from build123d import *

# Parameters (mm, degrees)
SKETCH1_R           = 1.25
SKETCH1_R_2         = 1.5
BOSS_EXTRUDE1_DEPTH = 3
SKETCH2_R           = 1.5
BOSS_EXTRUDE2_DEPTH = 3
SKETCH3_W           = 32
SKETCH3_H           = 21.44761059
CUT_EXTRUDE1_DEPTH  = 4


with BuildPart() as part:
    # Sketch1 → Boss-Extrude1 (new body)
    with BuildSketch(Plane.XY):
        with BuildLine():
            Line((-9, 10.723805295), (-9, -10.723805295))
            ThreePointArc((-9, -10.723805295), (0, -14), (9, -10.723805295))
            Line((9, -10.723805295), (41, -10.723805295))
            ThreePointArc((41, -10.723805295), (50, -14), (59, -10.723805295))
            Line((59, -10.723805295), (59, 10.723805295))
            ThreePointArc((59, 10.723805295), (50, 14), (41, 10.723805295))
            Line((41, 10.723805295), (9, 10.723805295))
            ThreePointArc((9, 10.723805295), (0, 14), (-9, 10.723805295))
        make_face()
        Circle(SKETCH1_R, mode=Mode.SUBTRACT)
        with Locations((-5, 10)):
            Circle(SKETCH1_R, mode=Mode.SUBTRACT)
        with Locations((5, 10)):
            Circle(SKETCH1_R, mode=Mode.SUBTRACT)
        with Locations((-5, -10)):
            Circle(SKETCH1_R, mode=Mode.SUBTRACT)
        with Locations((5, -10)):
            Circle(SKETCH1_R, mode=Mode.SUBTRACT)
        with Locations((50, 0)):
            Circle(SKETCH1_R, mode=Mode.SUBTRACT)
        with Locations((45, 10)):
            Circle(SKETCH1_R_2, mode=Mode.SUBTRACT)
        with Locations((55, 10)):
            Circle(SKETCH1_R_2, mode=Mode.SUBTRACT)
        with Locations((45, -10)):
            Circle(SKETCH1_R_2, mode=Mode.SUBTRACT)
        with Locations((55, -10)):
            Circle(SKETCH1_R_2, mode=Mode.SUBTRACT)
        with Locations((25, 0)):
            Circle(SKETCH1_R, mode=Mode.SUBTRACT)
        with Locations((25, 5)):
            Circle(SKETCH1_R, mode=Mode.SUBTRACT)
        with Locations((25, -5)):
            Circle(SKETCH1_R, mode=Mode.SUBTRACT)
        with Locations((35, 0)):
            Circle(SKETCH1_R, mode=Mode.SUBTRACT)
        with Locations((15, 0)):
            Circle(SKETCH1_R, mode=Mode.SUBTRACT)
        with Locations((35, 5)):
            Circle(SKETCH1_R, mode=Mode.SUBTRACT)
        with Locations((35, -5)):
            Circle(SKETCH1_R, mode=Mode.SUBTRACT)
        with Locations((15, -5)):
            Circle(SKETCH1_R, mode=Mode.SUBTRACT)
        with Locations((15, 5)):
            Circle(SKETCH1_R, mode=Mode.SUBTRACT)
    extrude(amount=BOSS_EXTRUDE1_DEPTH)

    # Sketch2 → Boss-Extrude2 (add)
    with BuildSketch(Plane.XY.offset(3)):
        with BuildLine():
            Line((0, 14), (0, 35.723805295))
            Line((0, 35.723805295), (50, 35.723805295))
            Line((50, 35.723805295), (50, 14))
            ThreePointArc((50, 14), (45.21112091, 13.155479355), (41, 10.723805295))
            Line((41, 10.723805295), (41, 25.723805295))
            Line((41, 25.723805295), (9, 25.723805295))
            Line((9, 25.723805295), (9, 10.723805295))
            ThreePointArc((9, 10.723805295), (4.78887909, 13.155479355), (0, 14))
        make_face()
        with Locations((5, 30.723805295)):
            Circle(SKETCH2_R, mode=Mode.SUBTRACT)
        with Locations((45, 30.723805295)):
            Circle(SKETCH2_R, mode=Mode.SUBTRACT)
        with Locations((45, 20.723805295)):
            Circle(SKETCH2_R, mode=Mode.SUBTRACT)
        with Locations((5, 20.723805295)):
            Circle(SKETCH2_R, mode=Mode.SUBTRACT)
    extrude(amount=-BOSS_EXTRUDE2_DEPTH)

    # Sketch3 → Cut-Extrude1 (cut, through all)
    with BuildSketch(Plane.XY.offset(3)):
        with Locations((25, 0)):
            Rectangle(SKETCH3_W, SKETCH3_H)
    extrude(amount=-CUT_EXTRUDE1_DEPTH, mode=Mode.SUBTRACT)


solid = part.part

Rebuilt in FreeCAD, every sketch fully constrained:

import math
import FreeCAD as App
import Part
import Sketcher

V = App.Vector
Q = App.Units.Quantity

doc = App.newDocument("Part")
body = doc.addObject("PartDesign::Body", "Body")

# Sketch on XY plane
sketch1 = doc.addObject("Sketcher::SketchObject", "Sketch")
body.addObject(sketch1)
sketch1.AttachmentSupport = (doc.XY_Plane, [""])
sketch1.MapMode = "FlatFace"
sketch1.addGeometry(Part.LineSegment(V(-9, 10.723805, 0), V(-9, -10.723805, 0)), False)
sketch1.addGeometry(Part.ArcOfCircle(Part.Circle(V(0, 0, 0), V(0, 0, 1), 14), math.radians(-130.005201), math.radians(-49.994799)), False)
sketch1.addGeometry(Part.LineSegment(V(9, -10.723805, 0), V(41, -10.723805, 0)), False)
sketch1.addGeometry(Part.ArcOfCircle(Part.Circle(V(50, 0, 0), V(0, 0, 1), 14), math.radians(-130.005201), math.radians(-49.994799)), False)
sketch1.addGeometry(Part.LineSegment(V(59, -10.723805, 0), V(59, 10.723805, 0)), False)
sketch1.addGeometry(Part.ArcOfCircle(Part.Circle(V(50, 0, 0), V(0, 0, 1), 14), math.radians(49.994799), math.radians(130.005201)), False)
sketch1.addGeometry(Part.LineSegment(V(41, 10.723805, 0), V(9, 10.723805, 0)), False)
sketch1.addGeometry(Part.ArcOfCircle(Part.Circle(V(0, 0, 0), V(0, 0, 1), 14), math.radians(49.994799), math.radians(130.005201)), False)
sketch1.addGeometry(Part.Circle(V(-5, -10, 0), V(0, 0, 1), 1.25), False)
sketch1.addGeometry(Part.Circle(V(5, -10, 0), V(0, 0, 1), 1.25), False)
sketch1.addGeometry(Part.Circle(V(15, -5, 0), V(0, 0, 1), 1.25), False)
sketch1.addGeometry(Part.Circle(V(25, -5, 0), V(0, 0, 1), 1.25), False)
sketch1.addGeometry(Part.Circle(V(45, -10, 0), V(0, 0, 1), 1.5), False)
sketch1.addGeometry(Part.Circle(V(55, -10, 0), V(0, 0, 1), 1.5), False)
sketch1.addGeometry(Part.Circle(V(35, -5, 0), V(0, 0, 1), 1.25), False)
sketch1.addGeometry(Part.Circle(V(0, 0, 0), V(0, 0, 1), 1.25), False)
sketch1.addGeometry(Part.Circle(V(15, 0, 0), V(0, 0, 1), 1.25), False)
sketch1.addGeometry(Part.Circle(V(25, 0, 0), V(0, 0, 1), 1.25), False)
sketch1.addGeometry(Part.Circle(V(15, 5, 0), V(0, 0, 1), 1.25), False)
sketch1.addGeometry(Part.Circle(V(25, 5, 0), V(0, 0, 1), 1.25), False)
sketch1.addGeometry(Part.Circle(V(-5, 10, 0), V(0, 0, 1), 1.25), False)
sketch1.addGeometry(Part.Circle(V(5, 10, 0), V(0, 0, 1), 1.25), False)
sketch1.addGeometry(Part.Circle(V(35, 0, 0), V(0, 0, 1), 1.25), False)
sketch1.addGeometry(Part.Circle(V(35, 5, 0), V(0, 0, 1), 1.25), False)
sketch1.addGeometry(Part.Circle(V(50, 0, 0), V(0, 0, 1), 1.25), False)
sketch1.addGeometry(Part.Circle(V(45, 10, 0), V(0, 0, 1), 1.5), False)
sketch1.addGeometry(Part.Circle(V(55, 10, 0), V(0, 0, 1), 1.5), False)
sketch1.addConstraint(Sketcher.Constraint("Coincident", 0, 2, 1, 1))
sketch1.addConstraint(Sketcher.Constraint("Coincident", 1, 2, 2, 1))
sketch1.addConstraint(Sketcher.Constraint("Coincident", 2, 2, 3, 1))
sketch1.addConstraint(Sketcher.Constraint("Coincident", 3, 2, 4, 1))
sketch1.addConstraint(Sketcher.Constraint("Coincident", 4, 2, 5, 1))
sketch1.addConstraint(Sketcher.Constraint("Coincident", 5, 2, 6, 1))
sketch1.addConstraint(Sketcher.Constraint("Coincident", 6, 2, 7, 1))
sketch1.addConstraint(Sketcher.Constraint("Coincident", 7, 2, 0, 1))
sketch1.addConstraint(Sketcher.Constraint("Vertical", 0))
sketch1.addConstraint(Sketcher.Constraint("Horizontal", 2))
sketch1.addConstraint(Sketcher.Constraint("Vertical", 4))
sketch1.addConstraint(Sketcher.Constraint("Horizontal", 6))
sketch1.addConstraint(Sketcher.Constraint("Coincident", 1, 3, -1, 1))
sketch1.addConstraint(Sketcher.Constraint("Coincident", 7, 3, -1, 1))
sketch1.addConstraint(Sketcher.Constraint("Coincident", 15, 3, -1, 1))
sketch1.addConstraint(Sketcher.Constraint("Coincident", 5, 3, 3, 3))
sketch1.addConstraint(Sketcher.Constraint("Coincident", 24, 3, 3, 3))
sketch1.addConstraint(Sketcher.Constraint("Equal", 1, 3))
sketch1.addConstraint(Sketcher.Constraint("Equal", 3, 5))
sketch1.addConstraint(Sketcher.Constraint("Equal", 5, 7))
sketch1.addConstraint(Sketcher.Constraint("Equal", 8, 9))
sketch1.addConstraint(Sketcher.Constraint("Equal", 9, 10))
sketch1.addConstraint(Sketcher.Constraint("Equal", 10, 11))
sketch1.addConstraint(Sketcher.Constraint("Equal", 12, 13))
sketch1.addConstraint(Sketcher.Constraint("Equal", 11, 14))
sketch1.addConstraint(Sketcher.Constraint("Equal", 14, 15))
sketch1.addConstraint(Sketcher.Constraint("Equal", 15, 16))
sketch1.addConstraint(Sketcher.Constraint("Equal", 16, 17))
sketch1.addConstraint(Sketcher.Constraint("Equal", 17, 18))
sketch1.addConstraint(Sketcher.Constraint("Equal", 18, 19))
sketch1.addConstraint(Sketcher.Constraint("Equal", 19, 20))
sketch1.addConstraint(Sketcher.Constraint("Equal", 20, 21))
sketch1.addConstraint(Sketcher.Constraint("Equal", 21, 22))
sketch1.addConstraint(Sketcher.Constraint("Equal", 22, 23))
sketch1.addConstraint(Sketcher.Constraint("Equal", 23, 24))
sketch1.addConstraint(Sketcher.Constraint("Equal", 13, 25))
sketch1.addConstraint(Sketcher.Constraint("Equal", 25, 26))
sketch1.addConstraint(Sketcher.Constraint("Symmetric", 9, 3, 20, 3, -1, 1))
sketch1.addConstraint(Sketcher.Constraint("Symmetric", 8, 3, 21, 3, -1, 1))
sketch1.addConstraint(Sketcher.Constraint("Symmetric", 8, 3, 9, 3, -2))
sketch1.addConstraint(Sketcher.Constraint("Symmetric", 10, 3, 18, 3, -1))
sketch1.addConstraint(Sketcher.Constraint("Symmetric", 11, 3, 19, 3, -1))
sketch1.addConstraint(Sketcher.Constraint("Symmetric", 14, 3, 23, 3, -1))
sketch1.addConstraint(Sketcher.Constraint("Symmetric", 12, 3, 25, 3, -1))
sketch1.addConstraint(Sketcher.Constraint("Symmetric", 13, 3, 26, 3, -1))
sketch1.addConstraint(Sketcher.Constraint("Symmetric", 2, 2, 5, 2, -1))
sketch1.addConstraint(Sketcher.Constraint("PointOnObject", 16, 3, -1))
sketch1.addConstraint(Sketcher.Constraint("PointOnObject", 17, 3, -1))
sketch1.addConstraint(Sketcher.Constraint("PointOnObject", 22, 3, -1))
sketch1.addConstraint(Sketcher.Constraint("Horizontal", 10, 3, 11, 3))
sketch1.addConstraint(Sketcher.Constraint("Horizontal", 9, 3, 12, 3))
sketch1.addConstraint(Sketcher.Constraint("Horizontal", 12, 3, 13, 3))
sketch1.addConstraint(Sketcher.Constraint("Horizontal", 11, 3, 14, 3))
sketch1.addConstraint(Sketcher.Constraint("Horizontal", 0, 2, 1, 2))
sketch1.addConstraint(Sketcher.Constraint("Horizontal", 2, 2, 3, 2))
sketch1.addConstraint(Sketcher.Constraint("Vertical", 10, 3, 16, 3))
sketch1.addConstraint(Sketcher.Constraint("Vertical", 11, 3, 17, 3))
sketch1.addConstraint(Sketcher.Constraint("Vertical", 14, 3, 22, 3))
sketch1.addConstraint(Sketcher.Constraint("Diameter", 12, Q("3 mm")))
sketch1.addConstraint(Sketcher.Constraint("Radius", 1, Q("14 mm")))
sketch1.addConstraint(Sketcher.Constraint("Diameter", 8, Q("2.5 mm")))
sketch1.addConstraint(Sketcher.Constraint("DistanceX", 2, 1, 2, 2, Q("32 mm")))
sketch1.addConstraint(Sketcher.Constraint("DistanceX", -1, 1, 3, 3, Q("50 mm")))
sketch1.addConstraint(Sketcher.Constraint("DistanceX", 8, 3, -1, 1, Q("5 mm")))
sketch1.addConstraint(Sketcher.Constraint("DistanceY", 8, 3, -1, 1, Q("10 mm")))
sketch1.addConstraint(Sketcher.Constraint("DistanceX", -1, 1, 10, 3, Q("15 mm")))
sketch1.addConstraint(Sketcher.Constraint("DistanceY", 10, 3, -1, 1, Q("5 mm")))
sketch1.addConstraint(Sketcher.Constraint("DistanceX", -1, 1, 11, 3, Q("25 mm")))
sketch1.addConstraint(Sketcher.Constraint("DistanceX", -1, 1, 12, 3, Q("45 mm")))
sketch1.addConstraint(Sketcher.Constraint("DistanceX", -1, 1, 13, 3, Q("55 mm")))
sketch1.addConstraint(Sketcher.Constraint("DistanceX", -1, 1, 14, 3, Q("35 mm")))
pad1 = doc.addObject("PartDesign::Pad", "Pad")
body.addObject(pad1)
pad1.Profile = sketch1
pad1.Length = 3

# Sketch on XY plane
sketch2 = doc.addObject("Sketcher::SketchObject", "Sketch001")
body.addObject(sketch2)
sketch2.AttachmentSupport = (doc.XY_Plane, [""])
sketch2.MapMode = "FlatFace"
sketch2.AttachmentOffset = App.Placement(V(0, 0, 3), App.Rotation())
sketch2.addGeometry(Part.LineSegment(V(0, 35.723805, 0), V(0, 14, 0)), False)
sketch2.addGeometry(Part.ArcOfCircle(Part.Circle(V(0, 0, 0), V(0, 0, 1), 14), math.radians(49.994799), math.radians(90)), False)
sketch2.addGeometry(Part.LineSegment(V(9, 10.723805, 0), V(9, 25.723805, 0)), False)
sketch2.addGeometry(Part.LineSegment(V(9, 25.723805, 0), V(41, 25.723805, 0)), False)
sketch2.addGeometry(Part.LineSegment(V(41, 25.723805, 0), V(41, 10.723805, 0)), False)
sketch2.addGeometry(Part.ArcOfCircle(Part.Circle(V(50, 0, 0), V(0, 0, 1), 14), math.radians(90), math.radians(130.005201)), False)
sketch2.addGeometry(Part.LineSegment(V(50, 14, 0), V(50, 35.723805, 0)), False)
sketch2.addGeometry(Part.LineSegment(V(50, 35.723805, 0), V(0, 35.723805, 0)), False)
sketch2.addGeometry(Part.Circle(V(45, 20.723805, 0), V(0, 0, 1), 1.5), False)
sketch2.addGeometry(Part.Circle(V(5, 20.723805, 0), V(0, 0, 1), 1.5), False)
sketch2.addGeometry(Part.Circle(V(45, 30.723805, 0), V(0, 0, 1), 1.5), False)
sketch2.addGeometry(Part.Circle(V(5, 30.723805, 0), V(0, 0, 1), 1.5), False)
sketch2.addConstraint(Sketcher.Constraint("Coincident", 0, 2, 1, 2))
sketch2.addConstraint(Sketcher.Constraint("Coincident", 1, 1, 2, 1))
sketch2.addConstraint(Sketcher.Constraint("Coincident", 2, 2, 3, 1))
sketch2.addConstraint(Sketcher.Constraint("Coincident", 3, 2, 4, 1))
sketch2.addConstraint(Sketcher.Constraint("Coincident", 4, 2, 5, 2))
sketch2.addConstraint(Sketcher.Constraint("Coincident", 5, 1, 6, 1))
sketch2.addConstraint(Sketcher.Constraint("Coincident", 6, 2, 7, 1))
sketch2.addConstraint(Sketcher.Constraint("Coincident", 7, 2, 0, 1))
sketch2.addConstraint(Sketcher.Constraint("Vertical", 0))
sketch2.addConstraint(Sketcher.Constraint("Vertical", 2))
sketch2.addConstraint(Sketcher.Constraint("Horizontal", 3))
sketch2.addConstraint(Sketcher.Constraint("Vertical", 4))
sketch2.addConstraint(Sketcher.Constraint("Vertical", 6))
sketch2.addConstraint(Sketcher.Constraint("Horizontal", 7))
sketch2.addConstraint(Sketcher.Constraint("Coincident", 1, 3, -1, 1))
sketch2.addConstraint(Sketcher.Constraint("Equal", 1, 5))
sketch2.addConstraint(Sketcher.Constraint("Equal", 8, 9))
sketch2.addConstraint(Sketcher.Constraint("Equal", 9, 10))
sketch2.addConstraint(Sketcher.Constraint("Equal", 10, 11))
sketch2.addConstraint(Sketcher.Constraint("PointOnObject", 5, 3, -1))
sketch2.addConstraint(Sketcher.Constraint("PointOnObject", 0, 2, -2))
sketch2.addConstraint(Sketcher.Constraint("Horizontal", 8, 3, 9, 3))
sketch2.addConstraint(Sketcher.Constraint("Horizontal", 10, 3, 11, 3))
sketch2.addConstraint(Sketcher.Constraint("Horizontal", 1, 1, 4, 2))
sketch2.addConstraint(Sketcher.Constraint("Vertical", 8, 3, 10, 3))
sketch2.addConstraint(Sketcher.Constraint("Vertical", 9, 3, 11, 3))
sketch2.addConstraint(Sketcher.Constraint("Diameter", 8, Q("3 mm")))
sketch2.addConstraint(Sketcher.Constraint("Radius", 1, Q("14 mm")))
sketch2.addConstraint(Sketcher.Constraint("DistanceX", 3, 1, 3, 2, Q("32 mm")))
sketch2.addConstraint(Sketcher.Constraint("DistanceX", 7, 2, 7, 1, Q("50 mm")))
sketch2.addConstraint(Sketcher.Constraint("DistanceY", 2, 1, 2, 2, Q("15 mm")))
sketch2.addConstraint(Sketcher.Constraint("DistanceX", -1, 1, 5, 3, Q("50 mm")))
sketch2.addConstraint(Sketcher.Constraint("DistanceX", -1, 1, 8, 3, Q("45 mm")))
sketch2.addConstraint(Sketcher.Constraint("DistanceX", -1, 1, 9, 3, Q("5 mm")))
sketch2.addConstraint(Sketcher.Constraint("DistanceY", 8, 3, 10, 3, Q("10 mm")))
sketch2.addConstraint(Sketcher.Constraint("DistanceY", 1, 1, 9, 3, Q("10 mm")))
sketch2.addConstraint(Sketcher.Constraint("DistanceY", 10, 3, 6, 2, Q("5 mm")))
pad2 = doc.addObject("PartDesign::Pad", "Pad001")
body.addObject(pad2)
pad2.Profile = sketch2
pad2.Length = 3
pad2.Reversed = True

# Sketch on XY plane
sketch3 = doc.addObject("Sketcher::SketchObject", "Sketch002")
body.addObject(sketch3)
sketch3.AttachmentSupport = (doc.XY_Plane, [""])
sketch3.MapMode = "FlatFace"
sketch3.AttachmentOffset = App.Placement(V(0, 0, 3), App.Rotation())
sketch3.addGeometry(Part.LineSegment(V(9, 10.723805, 0), V(9, -10.723805, 0)), False)
sketch3.addGeometry(Part.LineSegment(V(9, -10.723805, 0), V(41, -10.723805, 0)), False)
sketch3.addGeometry(Part.LineSegment(V(41, -10.723805, 0), V(41, 10.723805, 0)), False)
sketch3.addGeometry(Part.LineSegment(V(41, 10.723805, 0), V(9, 10.723805, 0)), False)
sketch3.addConstraint(Sketcher.Constraint("Coincident", 0, 2, 1, 1))
sketch3.addConstraint(Sketcher.Constraint("Coincident", 1, 2, 2, 1))
sketch3.addConstraint(Sketcher.Constraint("Coincident", 2, 2, 3, 1))
sketch3.addConstraint(Sketcher.Constraint("Coincident", 3, 2, 0, 1))
sketch3.addConstraint(Sketcher.Constraint("Vertical", 0))
sketch3.addConstraint(Sketcher.Constraint("Horizontal", 1))
sketch3.addConstraint(Sketcher.Constraint("Vertical", 2))
sketch3.addConstraint(Sketcher.Constraint("Horizontal", 3))
sketch3.addConstraint(Sketcher.Constraint("DistanceX", 1, 1, 1, 2, Q("32 mm")))
sketch3.addConstraint(Sketcher.Constraint("DistanceX", -1, 1, 0, 2, Q("9 mm")))
sketch3.addConstraint(Sketcher.Constraint("DistanceY", 0, 2, 0, 1, Q("21.447611 mm")))
sketch3.addConstraint(Sketcher.Constraint("DistanceY", 0, 2, -1, 1, Q("10.723805 mm")))
pocket1 = doc.addObject("PartDesign::Pocket", "Pocket")
body.addObject(pocket1)
pocket1.Profile = sketch3
pocket1.Type = "ThroughAll"

doc.recompute()
